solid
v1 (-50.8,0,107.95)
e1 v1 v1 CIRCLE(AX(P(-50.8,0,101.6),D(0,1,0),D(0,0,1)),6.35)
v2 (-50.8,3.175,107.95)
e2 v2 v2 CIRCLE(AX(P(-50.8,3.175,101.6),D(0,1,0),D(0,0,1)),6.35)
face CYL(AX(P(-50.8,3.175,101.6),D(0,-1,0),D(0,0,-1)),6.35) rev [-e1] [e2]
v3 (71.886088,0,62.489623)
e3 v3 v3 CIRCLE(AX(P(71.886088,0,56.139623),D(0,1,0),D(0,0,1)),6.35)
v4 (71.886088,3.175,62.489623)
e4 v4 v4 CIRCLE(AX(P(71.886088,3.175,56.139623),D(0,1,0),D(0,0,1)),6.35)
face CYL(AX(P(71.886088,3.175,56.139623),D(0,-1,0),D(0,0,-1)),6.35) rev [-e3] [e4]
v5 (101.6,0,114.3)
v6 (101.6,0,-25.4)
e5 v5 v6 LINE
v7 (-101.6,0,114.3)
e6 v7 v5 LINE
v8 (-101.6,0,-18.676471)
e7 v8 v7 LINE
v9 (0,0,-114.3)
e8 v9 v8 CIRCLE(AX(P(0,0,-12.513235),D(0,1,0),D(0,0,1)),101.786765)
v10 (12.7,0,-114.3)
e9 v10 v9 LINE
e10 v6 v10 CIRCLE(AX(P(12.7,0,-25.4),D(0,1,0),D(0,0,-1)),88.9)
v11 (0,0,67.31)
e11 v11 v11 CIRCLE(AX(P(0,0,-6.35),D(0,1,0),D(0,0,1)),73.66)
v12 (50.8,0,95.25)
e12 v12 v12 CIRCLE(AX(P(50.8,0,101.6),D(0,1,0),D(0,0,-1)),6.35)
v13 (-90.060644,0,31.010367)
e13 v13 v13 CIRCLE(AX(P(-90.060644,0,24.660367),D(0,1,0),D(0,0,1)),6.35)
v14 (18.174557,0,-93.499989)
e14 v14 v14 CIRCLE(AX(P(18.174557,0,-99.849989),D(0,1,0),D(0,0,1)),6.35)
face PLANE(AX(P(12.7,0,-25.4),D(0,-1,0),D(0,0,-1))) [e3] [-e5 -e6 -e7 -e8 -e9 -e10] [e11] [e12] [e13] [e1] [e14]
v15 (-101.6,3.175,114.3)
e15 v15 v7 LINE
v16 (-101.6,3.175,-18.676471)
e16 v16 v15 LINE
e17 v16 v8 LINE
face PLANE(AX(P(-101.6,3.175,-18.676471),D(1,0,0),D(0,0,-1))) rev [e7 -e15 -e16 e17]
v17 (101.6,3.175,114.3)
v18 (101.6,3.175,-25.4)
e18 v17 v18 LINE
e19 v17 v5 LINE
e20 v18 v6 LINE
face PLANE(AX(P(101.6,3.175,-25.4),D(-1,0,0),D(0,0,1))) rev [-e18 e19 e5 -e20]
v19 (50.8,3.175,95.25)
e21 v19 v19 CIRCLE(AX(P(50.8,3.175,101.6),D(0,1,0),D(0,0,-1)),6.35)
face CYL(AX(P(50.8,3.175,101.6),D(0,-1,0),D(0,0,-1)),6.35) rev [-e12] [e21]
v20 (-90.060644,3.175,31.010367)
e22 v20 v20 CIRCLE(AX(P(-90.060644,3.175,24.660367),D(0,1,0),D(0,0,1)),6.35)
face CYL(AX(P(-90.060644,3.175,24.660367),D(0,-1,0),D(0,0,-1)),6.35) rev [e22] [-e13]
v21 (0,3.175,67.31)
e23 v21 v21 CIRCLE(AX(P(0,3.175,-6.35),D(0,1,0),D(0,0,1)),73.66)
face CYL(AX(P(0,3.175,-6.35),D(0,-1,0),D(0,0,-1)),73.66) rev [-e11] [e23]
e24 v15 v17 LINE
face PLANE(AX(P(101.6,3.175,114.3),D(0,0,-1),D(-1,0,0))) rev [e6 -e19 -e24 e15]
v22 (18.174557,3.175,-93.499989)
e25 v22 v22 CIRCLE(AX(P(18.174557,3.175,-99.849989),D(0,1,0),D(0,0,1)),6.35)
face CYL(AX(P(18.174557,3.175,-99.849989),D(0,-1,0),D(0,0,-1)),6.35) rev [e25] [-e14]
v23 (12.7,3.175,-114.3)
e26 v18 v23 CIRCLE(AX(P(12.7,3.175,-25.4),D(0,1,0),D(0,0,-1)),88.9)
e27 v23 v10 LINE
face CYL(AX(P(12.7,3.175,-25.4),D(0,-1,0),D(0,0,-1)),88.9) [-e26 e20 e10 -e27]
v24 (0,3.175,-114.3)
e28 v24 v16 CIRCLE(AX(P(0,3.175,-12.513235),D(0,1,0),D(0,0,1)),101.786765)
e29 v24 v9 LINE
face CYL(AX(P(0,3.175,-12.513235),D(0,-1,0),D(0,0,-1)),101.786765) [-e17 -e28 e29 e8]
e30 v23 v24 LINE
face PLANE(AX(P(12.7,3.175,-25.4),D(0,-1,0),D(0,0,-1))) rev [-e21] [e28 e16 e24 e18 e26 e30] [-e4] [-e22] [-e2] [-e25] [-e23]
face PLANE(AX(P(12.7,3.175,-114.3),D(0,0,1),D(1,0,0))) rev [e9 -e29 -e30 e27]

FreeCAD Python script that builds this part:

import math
import FreeCAD as App
import Part
import Sketcher

V = App.Vector
Q = App.Units.Quantity

doc = App.newDocument("Part")
body = doc.addObject("PartDesign::Body", "Body")

sketch1 = body.newObject("Sketcher::SketchObject", "Sketch")
sketch1.AttachmentSupport = (doc.getObject("XZ_Plane"), [""])
sketch1.MapMode = "FlatFace"
sketch1.addGeometry([
    Part.LineSegment(V(13, -114, 0), V(0, -114, 0)),
    Part.ArcOfCircle(Part.Circle(V(0, -13, 0), V(0, 0, 1), 102), math.radians(-177), math.radians(-90)),
    Part.LineSegment(V(-102, -19, 0), V(-102, 114, 0)),
    Part.LineSegment(V(-102, 114, 0), V(102, 114, 0)),
    Part.LineSegment(V(102, 114, 0), V(102, -25, 0)),
    Part.ArcOfCircle(Part.Circle(V(13, -25, 0), V(0, 0, 1), 89), math.radians(-90), math.radians(0)),
    Part.Circle(V(-51, 102, 0), V(0, 0, 1), 6),
    Part.Circle(V(-90, 25, 0), V(0, 0, 1), 6),
    Part.Circle(V(51, 102, 0), V(0, 0, 1), 6),
    Part.Circle(V(72, 56, 0), V(0, 0, 1), 6),
    Part.Circle(V(0, -6, 0), V(0, 0, 1), 74),
    Part.Circle(V(18, -100, 0), V(0, 0, 1), 6),
], False)
sketch1.addConstraint([
    Sketcher.Constraint("Tangent", 0, 2, 1, 2),
    Sketcher.Constraint("Coincident", 1, 1, 2, 1),
    Sketcher.Constraint("Coincident", 2, 2, 3, 1),
    Sketcher.Constraint("Coincident", 3, 2, 4, 1),
    Sketcher.Constraint("Tangent", 4, 2, 5, 2),
    Sketcher.Constraint("Tangent", 5, 1, 0, 1),
    Sketcher.Constraint("Horizontal", 0),
    Sketcher.Constraint("Vertical", 2),
    Sketcher.Constraint("Horizontal", 3),
    Sketcher.Constraint("Vertical", 4),
    Sketcher.Constraint("Equal", 6, 7),
    Sketcher.Constraint("Equal", 7, 8),
    Sketcher.Constraint("Equal", 8, 9),
    Sketcher.Constraint("Equal", 9, 11),
    Sketcher.Constraint("Symmetric", 6, 3, 8, 3, -2),
    Sketcher.Constraint("PointOnObject", 1, 3, -2),
    Sketcher.Constraint("PointOnObject", 10, 3, -2),
    Sketcher.Constraint("Diameter", 6, Q("0.5 in")),
    Sketcher.Constraint("Diameter", 10, Q("5.8 in")),
    Sketcher.Constraint("Radius", 5, Q("3.5 in")),
    Sketcher.Constraint("DistanceX", 3, 1, 3, 2, Q("8 in")),
    Sketcher.Constraint("DistanceX", 0, 2, 0, 1, Q("0.5 in")),
    Sketcher.Constraint("DistanceY", 4, 2, 4, 1, Q("5.5 in")),
    Sketcher.Constraint("DistanceY", 5, 3, -1, 1, Q("1 in")),
    Sketcher.Constraint("DistanceX", 6, 3, -1, 1, Q("2 in")),
    Sketcher.Constraint("DistanceY", -1, 1, 6, 3, Q("4 in")),
    Sketcher.Constraint("DistanceY", 10, 3, -1, 1, Q("0.25 in")),
    Sketcher.Constraint("Radius", 1, Q("101.786765 mm")),
    Sketcher.Constraint("DistanceX", 7, 3, 11, 3, Q("108.235201 mm")),
    Sketcher.Constraint("DistanceY", 11, 3, -1, 1, Q("99.849989 mm")),
    Sketcher.Constraint("DistanceX", 7, 3, 9, 3, Q("161.946732 mm")),
    Sketcher.Constraint("DistanceY", 11, 3, 9, 3, Q("155.989612 mm")),
    Sketcher.Constraint("DistanceX", 7, 3, -1, 1, Q("90.060644 mm")),
    Sketcher.Constraint("DistanceY", -1, 1, 7, 3, Q("24.660367 mm")),
])
pad1 = body.newObject("PartDesign::Pad", "Pad")
pad1.Profile = sketch1
pad1.Length = Q("0.125 in")
pad1.Reversed = True

doc.recompute()
